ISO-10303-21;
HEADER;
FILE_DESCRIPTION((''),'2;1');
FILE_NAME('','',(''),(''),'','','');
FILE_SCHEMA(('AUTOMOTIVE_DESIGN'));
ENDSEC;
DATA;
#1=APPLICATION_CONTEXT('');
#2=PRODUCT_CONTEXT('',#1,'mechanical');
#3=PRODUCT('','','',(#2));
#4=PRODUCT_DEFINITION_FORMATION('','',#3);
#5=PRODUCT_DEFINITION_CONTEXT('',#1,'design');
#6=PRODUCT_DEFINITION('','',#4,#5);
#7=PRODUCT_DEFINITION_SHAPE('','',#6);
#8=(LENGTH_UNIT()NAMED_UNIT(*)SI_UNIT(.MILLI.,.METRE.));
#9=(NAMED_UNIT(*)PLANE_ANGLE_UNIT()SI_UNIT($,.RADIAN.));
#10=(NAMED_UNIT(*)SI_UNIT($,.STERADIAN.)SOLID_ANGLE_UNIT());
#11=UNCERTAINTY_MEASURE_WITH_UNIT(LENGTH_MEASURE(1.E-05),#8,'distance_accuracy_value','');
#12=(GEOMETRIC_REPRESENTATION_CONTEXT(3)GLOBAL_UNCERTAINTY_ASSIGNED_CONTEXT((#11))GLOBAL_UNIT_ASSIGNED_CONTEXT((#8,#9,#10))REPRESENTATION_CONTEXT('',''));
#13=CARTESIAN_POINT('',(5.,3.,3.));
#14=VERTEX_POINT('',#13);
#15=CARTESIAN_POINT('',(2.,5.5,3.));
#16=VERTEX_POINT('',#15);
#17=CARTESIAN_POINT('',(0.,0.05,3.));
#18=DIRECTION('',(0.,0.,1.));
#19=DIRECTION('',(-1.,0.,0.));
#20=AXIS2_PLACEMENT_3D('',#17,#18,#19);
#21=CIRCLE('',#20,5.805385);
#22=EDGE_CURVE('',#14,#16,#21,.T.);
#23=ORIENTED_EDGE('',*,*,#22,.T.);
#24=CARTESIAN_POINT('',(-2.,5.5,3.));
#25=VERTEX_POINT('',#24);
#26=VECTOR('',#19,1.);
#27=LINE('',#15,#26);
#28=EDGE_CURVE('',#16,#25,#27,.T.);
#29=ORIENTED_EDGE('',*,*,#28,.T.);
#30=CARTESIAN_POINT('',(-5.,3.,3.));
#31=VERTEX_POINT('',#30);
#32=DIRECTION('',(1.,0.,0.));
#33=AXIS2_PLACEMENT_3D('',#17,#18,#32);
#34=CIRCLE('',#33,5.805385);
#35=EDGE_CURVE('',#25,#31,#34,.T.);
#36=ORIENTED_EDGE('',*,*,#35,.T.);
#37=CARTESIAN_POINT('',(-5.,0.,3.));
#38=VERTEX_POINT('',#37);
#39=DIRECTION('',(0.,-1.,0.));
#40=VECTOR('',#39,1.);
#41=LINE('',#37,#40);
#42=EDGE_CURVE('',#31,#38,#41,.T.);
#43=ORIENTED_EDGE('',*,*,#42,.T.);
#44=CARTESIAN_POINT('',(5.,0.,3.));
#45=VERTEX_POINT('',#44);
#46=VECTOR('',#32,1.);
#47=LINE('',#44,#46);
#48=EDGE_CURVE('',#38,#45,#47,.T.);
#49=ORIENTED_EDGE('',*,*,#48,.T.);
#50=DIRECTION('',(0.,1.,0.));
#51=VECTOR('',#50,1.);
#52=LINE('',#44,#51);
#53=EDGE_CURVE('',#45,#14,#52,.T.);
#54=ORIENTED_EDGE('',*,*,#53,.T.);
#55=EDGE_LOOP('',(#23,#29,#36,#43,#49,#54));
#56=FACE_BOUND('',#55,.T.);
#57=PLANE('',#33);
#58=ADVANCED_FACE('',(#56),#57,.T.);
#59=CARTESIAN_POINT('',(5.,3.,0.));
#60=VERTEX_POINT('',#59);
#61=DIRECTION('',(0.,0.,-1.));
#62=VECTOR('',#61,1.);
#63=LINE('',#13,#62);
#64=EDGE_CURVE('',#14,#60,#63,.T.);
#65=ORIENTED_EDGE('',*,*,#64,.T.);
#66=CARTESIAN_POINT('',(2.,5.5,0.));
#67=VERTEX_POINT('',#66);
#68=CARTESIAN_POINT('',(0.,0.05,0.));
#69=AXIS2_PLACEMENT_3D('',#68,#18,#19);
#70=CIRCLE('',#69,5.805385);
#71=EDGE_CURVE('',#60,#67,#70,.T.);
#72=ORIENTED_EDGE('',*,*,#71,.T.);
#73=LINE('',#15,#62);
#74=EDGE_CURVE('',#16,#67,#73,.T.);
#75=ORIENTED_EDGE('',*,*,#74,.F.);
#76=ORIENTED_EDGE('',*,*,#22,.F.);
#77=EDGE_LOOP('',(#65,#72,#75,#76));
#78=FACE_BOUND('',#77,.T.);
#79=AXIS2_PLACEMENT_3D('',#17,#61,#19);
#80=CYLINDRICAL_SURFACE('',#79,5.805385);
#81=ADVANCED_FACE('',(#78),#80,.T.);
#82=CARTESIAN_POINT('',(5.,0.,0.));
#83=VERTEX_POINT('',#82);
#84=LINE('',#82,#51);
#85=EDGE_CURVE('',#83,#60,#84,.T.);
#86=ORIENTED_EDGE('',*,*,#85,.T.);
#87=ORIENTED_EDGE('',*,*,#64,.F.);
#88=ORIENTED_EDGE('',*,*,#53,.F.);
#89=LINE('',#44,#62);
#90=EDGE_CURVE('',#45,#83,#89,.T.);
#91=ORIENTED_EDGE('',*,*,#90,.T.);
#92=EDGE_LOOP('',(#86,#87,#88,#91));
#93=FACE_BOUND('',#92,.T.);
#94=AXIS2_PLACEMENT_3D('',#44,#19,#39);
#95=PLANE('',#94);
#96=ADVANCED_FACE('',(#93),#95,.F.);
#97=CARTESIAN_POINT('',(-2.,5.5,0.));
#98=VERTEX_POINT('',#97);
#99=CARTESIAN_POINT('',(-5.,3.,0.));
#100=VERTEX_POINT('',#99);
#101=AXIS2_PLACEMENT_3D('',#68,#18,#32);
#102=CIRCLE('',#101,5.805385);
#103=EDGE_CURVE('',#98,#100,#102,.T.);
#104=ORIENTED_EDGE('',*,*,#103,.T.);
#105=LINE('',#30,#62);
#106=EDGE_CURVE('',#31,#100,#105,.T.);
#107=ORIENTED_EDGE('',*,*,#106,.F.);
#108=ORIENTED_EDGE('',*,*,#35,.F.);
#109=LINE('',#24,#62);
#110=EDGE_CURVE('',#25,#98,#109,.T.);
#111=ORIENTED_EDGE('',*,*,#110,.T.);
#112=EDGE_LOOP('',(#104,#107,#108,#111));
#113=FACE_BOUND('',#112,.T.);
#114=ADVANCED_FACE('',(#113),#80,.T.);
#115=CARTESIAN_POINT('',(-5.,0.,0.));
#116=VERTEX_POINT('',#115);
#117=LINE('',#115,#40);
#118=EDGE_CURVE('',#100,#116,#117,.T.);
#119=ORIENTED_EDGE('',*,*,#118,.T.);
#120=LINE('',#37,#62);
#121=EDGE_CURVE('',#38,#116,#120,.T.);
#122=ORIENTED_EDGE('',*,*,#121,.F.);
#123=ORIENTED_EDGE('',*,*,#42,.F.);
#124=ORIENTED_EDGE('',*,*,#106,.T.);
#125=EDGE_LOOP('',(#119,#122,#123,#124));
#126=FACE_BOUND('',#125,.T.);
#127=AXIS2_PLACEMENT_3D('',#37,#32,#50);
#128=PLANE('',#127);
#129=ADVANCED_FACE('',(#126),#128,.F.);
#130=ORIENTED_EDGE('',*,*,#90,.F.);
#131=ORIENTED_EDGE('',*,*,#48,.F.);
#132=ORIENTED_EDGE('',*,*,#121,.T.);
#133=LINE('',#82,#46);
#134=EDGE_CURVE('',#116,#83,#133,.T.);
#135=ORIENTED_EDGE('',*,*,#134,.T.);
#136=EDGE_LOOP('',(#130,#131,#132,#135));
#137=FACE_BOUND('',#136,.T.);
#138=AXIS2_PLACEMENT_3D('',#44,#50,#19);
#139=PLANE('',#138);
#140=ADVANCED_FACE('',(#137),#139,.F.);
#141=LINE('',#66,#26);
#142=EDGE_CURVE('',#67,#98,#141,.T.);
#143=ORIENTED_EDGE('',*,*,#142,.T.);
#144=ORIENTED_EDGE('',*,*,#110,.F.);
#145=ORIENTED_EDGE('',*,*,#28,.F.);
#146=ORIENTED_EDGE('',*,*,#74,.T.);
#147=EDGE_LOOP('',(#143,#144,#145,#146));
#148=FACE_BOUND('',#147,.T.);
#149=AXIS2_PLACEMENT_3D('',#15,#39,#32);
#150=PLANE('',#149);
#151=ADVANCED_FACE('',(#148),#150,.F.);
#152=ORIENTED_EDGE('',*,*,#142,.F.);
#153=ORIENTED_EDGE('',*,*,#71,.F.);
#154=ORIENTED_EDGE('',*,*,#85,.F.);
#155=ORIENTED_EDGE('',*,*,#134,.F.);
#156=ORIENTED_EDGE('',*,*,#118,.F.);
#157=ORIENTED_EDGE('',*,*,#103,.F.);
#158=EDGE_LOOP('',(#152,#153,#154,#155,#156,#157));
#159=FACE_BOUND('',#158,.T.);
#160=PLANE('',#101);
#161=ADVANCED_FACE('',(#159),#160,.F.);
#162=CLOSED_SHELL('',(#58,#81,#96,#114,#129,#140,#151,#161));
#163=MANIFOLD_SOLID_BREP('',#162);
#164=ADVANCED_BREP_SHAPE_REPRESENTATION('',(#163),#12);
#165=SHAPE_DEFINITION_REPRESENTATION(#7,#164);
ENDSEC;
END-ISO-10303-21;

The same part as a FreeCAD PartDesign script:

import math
import FreeCAD as App
import Part
import Sketcher

V = App.Vector
Q = App.Units.Quantity

doc = App.newDocument("Part")
body = doc.addObject("PartDesign::Body", "Body")

# Sketch on XY plane
sketch1 = body.newObject("Sketcher::SketchObject", "Sketch")
sketch1.AttachmentSupport = (doc.getObject("XY_Plane"), [""])
sketch1.MapMode = "FlatFace"
sketch1.addGeometry(Part.LineSegment(V(-5, 0, 0), V(5, 0, 0)), False)
sketch1.addGeometry(Part.LineSegment(V(5, 0, 0), V(5, 3, 0)), False)
sketch1.addGeometry(Part.ArcOfCircle(Part.Circle(V(0, 0, 0), V(0, 0, 1), 5.8), math.radians(31), math.radians(70)), False)
sketch1.addGeometry(Part.LineSegment(V(2, 5.5, 0), V(-2, 5.5, 0)), False)
sketch1.addGeometry(Part.ArcOfCircle(Part.Circle(V(0, 0, 0), V(0, 0, 1), 5.8), math.radians(110), math.radians(149)), False)
sketch1.addGeometry(Part.LineSegment(V(-5, 3, 0), V(-5, 0, 0)), False)
sketch1.addConstraint(Sketcher.Constraint("Coincident", 0, 2, 1, 1))
sketch1.addConstraint(Sketcher.Constraint("Coincident", 1, 2, 2, 1))
sketch1.addConstraint(Sketcher.Constraint("Coincident", 2, 2, 3, 1))
sketch1.addConstraint(Sketcher.Constraint("Coincident", 3, 2, 4, 1))
sketch1.addConstraint(Sketcher.Constraint("Coincident", 4, 2, 5, 1))
sketch1.addConstraint(Sketcher.Constraint("Coincident", 5, 2, 0, 1))
sketch1.addConstraint(Sketcher.Constraint("Horizontal", 0))
sketch1.addConstraint(Sketcher.Constraint("Vertical", 1))
sketch1.addConstraint(Sketcher.Constraint("Horizontal", 3))
sketch1.addConstraint(Sketcher.Constraint("Vertical", 5))
sketch1.addConstraint(Sketcher.Constraint("Coincident", 4, 3, 2, 3))
sketch1.addConstraint(Sketcher.Constraint("Equal", 2, 4))
sketch1.addConstraint(Sketcher.Constraint("Symmetric", 0, 2, 5, 2, -1, 1))
sketch1.addConstraint(Sketcher.Constraint("PointOnObject", 2, 3, -2))
sketch1.addConstraint(Sketcher.Constraint("DistanceX", 0, 1, 0, 2, Q("10 mm")))
sketch1.addConstraint(Sketcher.Constraint("DistanceX", 3, 2, 3, 1, Q("4 mm")))
sketch1.addConstraint(Sketcher.Constraint("DistanceY", 1, 1, 1, 2, Q("3 mm")))
sketch1.addConstraint(Sketcher.Constraint("DistanceY", -1, 1, 2, 2, Q("5.5 mm")))
pad1 = body.newObject("PartDesign::Pad", "Pad")
pad1.Profile = sketch1
pad1.Length = 3

doc.recompute()
